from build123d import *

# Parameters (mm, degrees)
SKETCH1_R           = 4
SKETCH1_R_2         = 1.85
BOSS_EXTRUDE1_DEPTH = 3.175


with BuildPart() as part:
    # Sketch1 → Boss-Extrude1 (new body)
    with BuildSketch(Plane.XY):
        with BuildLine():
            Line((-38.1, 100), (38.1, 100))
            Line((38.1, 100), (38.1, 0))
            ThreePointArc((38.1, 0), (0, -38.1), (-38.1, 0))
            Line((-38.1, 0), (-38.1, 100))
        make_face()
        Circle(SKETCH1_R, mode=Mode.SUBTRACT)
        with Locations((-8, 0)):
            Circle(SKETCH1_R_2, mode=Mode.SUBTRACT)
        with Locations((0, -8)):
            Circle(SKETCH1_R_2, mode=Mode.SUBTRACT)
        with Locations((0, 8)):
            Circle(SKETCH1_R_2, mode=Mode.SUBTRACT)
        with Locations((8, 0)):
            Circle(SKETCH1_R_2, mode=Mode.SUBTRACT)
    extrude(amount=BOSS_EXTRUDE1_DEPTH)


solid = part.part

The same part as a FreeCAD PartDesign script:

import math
import FreeCAD as App
import Part
import Sketcher
Q = App.Units.Quantity

doc = App.newDocument("Part")
body = doc.addObject("PartDesign::Body", "Body")

sketch1 = body.newObject("Sketcher::SketchObject", "Sketch")
sketch1.AttachmentSupport = (doc.getObject("XY_Plane"), [""])
sketch1.MapMode = "FlatFace"
sketch1.addGeometry([
    Part.LineSegment(App.Vector(38.1, 100, 0), App.Vector(-38.1, 100, 0)),
    Part.LineSegment(App.Vector(-38.1, 100, 0), App.Vector(-38.1, 0, 0)),
    Part.ArcOfCircle(Part.Circle(App.Vector(0, 0, 0), App.Vector(0, 0, 1), 38.1), math.radians(180), math.radians(360)),
    Part.LineSegment(App.Vector(38.1, 0, 0), App.Vector(38.1, 100, 0)),
    Part.Circle(App.Vector(0, -8, 0), App.Vector(0, 0, 1), 1.9),
    Part.Circle(App.Vector(8, 0, 0), App.Vector(0, 0, 1), 1.9),
    Part.Circle(App.Vector(0, 0, 0), App.Vector(0, 0, 1), 4),
    Part.Circle(App.Vector(-8, 0, 0), App.Vector(0, 0, 1), 1.9),
    Part.Circle(App.Vector(0, 8, 0), App.Vector(0, 0, 1), 1.9),
], False)
sketch1.addConstraint([
    Sketcher.Constraint("Coincident", 0, 2, 1, 1),
    Sketcher.Constraint("Tangent", 1, 2, 2, 1),
    Sketcher.Constraint("Tangent", 2, 2, 3, 1),
    Sketcher.Constraint("Coincident", 3, 2, 0, 1),
    Sketcher.Constraint("Horizontal", 0),
    Sketcher.Constraint("Vertical", 1),
    Sketcher.Constraint("Vertical", 3),
    Sketcher.Constraint("Coincident", 2, 3, -1, 1),
    Sketcher.Constraint("Coincident", 6, 3, -1, 1),
    Sketcher.Constraint("Equal", 4, 5),
    Sketcher.Constraint("Equal", 5, 7),
    Sketcher.Constraint("Equal", 7, 8),
    Sketcher.Constraint("Symmetric", 5, 3, 7, 3, -1, 1),
    Sketcher.Constraint("Symmetric", 4, 3, 8, 3, -1, 1),
    Sketcher.Constraint("PointOnObject", 4, 3, -2),
    Sketcher.Constraint("PointOnObject", 5, 3, -1),
    Sketcher.Constraint("Diameter", 6, Q("8 mm")),
    Sketcher.Constraint("Diameter", 4, Q("3.7 mm")),
    Sketcher.Constraint("Radius", 2, Q("38.1 mm")),
    Sketcher.Constraint("DistanceY", 1, 2, 1, 1, Q("100 mm")),
    Sketcher.Constraint("DistanceY", 4, 3, -1, 1, Q("8 mm")),
    Sketcher.Constraint("DistanceX", -1, 1, 5, 3, Q("8 mm")),
])
pad1 = body.newObject("PartDesign::Pad", "Pad")
pad1.Profile = sketch1
pad1.Length = 3.175

doc.recompute()
